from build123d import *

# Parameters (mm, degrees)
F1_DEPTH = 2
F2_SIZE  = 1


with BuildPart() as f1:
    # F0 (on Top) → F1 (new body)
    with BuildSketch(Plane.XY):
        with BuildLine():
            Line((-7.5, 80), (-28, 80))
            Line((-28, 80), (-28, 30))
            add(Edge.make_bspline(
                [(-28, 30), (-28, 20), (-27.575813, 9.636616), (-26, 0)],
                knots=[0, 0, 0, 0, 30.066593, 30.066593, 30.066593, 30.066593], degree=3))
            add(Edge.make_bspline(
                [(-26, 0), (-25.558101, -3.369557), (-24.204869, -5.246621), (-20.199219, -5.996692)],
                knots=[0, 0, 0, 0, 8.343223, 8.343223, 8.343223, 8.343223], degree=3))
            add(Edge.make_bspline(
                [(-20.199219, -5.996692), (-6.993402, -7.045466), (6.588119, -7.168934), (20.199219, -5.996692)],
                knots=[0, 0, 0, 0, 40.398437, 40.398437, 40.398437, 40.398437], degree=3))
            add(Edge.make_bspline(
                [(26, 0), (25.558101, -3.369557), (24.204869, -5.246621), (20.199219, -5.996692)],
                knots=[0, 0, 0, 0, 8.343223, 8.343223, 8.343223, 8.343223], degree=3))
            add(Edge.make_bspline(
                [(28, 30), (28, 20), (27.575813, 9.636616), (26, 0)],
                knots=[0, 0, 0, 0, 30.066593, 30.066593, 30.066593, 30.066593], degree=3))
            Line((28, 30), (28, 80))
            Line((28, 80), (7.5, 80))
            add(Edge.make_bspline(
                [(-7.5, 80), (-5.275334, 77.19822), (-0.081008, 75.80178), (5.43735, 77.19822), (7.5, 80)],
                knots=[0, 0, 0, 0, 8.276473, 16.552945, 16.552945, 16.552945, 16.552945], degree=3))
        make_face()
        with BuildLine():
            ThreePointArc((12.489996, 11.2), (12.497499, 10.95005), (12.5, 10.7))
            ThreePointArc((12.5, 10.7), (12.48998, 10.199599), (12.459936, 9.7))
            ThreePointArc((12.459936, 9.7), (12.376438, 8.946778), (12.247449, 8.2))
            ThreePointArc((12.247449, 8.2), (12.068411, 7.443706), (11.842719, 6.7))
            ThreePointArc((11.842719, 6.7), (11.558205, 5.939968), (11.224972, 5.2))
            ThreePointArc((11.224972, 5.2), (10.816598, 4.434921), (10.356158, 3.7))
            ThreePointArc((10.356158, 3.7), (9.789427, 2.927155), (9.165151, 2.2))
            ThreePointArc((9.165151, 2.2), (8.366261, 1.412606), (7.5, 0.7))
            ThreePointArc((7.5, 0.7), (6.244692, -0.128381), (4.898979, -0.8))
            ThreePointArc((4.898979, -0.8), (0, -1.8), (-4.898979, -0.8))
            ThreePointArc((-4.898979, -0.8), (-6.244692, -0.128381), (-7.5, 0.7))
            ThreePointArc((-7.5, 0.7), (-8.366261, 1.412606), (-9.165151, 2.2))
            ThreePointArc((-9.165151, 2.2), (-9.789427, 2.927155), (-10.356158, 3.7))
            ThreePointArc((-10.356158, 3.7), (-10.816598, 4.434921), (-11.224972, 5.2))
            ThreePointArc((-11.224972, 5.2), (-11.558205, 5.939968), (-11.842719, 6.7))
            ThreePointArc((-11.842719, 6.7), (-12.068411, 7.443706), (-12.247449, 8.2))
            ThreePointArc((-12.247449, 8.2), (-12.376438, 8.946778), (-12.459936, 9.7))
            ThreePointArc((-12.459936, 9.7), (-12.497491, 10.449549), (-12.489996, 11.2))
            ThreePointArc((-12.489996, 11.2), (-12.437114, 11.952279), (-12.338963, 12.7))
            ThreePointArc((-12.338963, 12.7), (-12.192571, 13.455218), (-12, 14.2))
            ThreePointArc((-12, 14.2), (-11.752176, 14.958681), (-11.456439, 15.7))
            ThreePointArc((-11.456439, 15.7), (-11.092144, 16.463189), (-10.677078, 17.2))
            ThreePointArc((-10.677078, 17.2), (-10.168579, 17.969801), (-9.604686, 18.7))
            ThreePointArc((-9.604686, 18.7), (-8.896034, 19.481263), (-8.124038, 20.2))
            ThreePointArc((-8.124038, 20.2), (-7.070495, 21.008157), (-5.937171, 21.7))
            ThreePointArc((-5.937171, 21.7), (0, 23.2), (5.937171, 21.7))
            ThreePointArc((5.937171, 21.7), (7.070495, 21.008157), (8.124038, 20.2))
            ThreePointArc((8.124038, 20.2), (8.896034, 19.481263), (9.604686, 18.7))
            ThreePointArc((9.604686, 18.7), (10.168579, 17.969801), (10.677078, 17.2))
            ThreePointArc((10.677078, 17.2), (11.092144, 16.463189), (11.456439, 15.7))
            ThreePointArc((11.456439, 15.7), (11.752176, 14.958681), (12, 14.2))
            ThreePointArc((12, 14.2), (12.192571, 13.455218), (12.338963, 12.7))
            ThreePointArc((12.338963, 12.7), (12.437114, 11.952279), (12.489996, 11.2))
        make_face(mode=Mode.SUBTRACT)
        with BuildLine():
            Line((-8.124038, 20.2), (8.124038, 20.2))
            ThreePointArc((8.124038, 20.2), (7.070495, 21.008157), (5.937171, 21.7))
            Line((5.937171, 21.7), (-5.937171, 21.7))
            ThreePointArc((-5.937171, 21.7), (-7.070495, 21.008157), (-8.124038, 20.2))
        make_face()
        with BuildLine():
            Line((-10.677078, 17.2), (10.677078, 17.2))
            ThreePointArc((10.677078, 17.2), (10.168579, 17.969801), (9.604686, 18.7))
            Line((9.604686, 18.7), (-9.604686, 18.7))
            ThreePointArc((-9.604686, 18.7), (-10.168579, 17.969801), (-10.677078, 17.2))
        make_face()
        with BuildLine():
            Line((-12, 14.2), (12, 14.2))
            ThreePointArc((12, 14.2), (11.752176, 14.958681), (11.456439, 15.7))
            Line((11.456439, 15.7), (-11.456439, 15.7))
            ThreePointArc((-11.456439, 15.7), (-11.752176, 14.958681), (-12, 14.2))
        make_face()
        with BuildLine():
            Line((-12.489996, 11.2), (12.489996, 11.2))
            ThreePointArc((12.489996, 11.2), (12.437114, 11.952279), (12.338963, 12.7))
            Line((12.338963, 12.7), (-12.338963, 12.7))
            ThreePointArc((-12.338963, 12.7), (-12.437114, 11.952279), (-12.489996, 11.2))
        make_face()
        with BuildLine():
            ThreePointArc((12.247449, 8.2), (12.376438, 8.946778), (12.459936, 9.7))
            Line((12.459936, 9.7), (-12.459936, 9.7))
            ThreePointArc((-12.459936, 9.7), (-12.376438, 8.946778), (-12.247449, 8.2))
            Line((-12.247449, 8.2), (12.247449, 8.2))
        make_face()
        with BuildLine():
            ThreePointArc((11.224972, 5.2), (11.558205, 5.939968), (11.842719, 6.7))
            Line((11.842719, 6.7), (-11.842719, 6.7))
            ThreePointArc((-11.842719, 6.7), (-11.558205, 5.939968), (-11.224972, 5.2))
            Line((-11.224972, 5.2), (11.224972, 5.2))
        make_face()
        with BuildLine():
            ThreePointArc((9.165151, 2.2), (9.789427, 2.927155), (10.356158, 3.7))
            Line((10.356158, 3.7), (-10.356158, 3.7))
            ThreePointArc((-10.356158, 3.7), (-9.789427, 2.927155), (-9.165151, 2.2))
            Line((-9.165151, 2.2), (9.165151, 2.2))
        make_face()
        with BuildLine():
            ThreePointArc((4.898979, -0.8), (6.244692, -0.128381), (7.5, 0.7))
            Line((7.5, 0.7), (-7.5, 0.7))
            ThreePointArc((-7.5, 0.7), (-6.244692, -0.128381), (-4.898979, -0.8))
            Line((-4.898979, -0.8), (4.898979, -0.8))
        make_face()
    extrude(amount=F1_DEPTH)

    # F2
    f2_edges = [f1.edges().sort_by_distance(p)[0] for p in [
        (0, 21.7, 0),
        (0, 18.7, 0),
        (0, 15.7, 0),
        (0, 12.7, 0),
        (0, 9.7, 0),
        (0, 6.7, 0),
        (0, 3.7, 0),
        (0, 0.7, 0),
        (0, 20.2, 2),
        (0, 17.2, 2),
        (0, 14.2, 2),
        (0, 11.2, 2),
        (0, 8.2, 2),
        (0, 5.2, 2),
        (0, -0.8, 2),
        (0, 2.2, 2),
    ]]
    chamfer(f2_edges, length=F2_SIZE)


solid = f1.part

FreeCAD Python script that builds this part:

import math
import FreeCAD as App
import Part
import Sketcher
from FreeCAD import Vector
Q = App.Units.Quantity


def edges_at(feature, points):
    """Names of the edges that pass closest to the given points."""
    edges = feature.Shape.Edges
    near = lambda p: min(range(len(edges)), key=lambda i: edges[i].distToShape(Part.Vertex(*p))[0])
    return sorted({f"Edge{near(p) + 1}" for p in points})

doc = App.newDocument("Part")
body = doc.addObject("PartDesign::Body", "Body")

# Sketch on XY plane
sketch1 = doc.addObject("Sketcher::SketchObject", "Sketch")
body.addObject(sketch1)
sketch1.AttachmentSupport = (doc.XY_Plane, [""])
sketch1.MapMode = "FlatFace"
sketch1.addGeometry([
    Part.LineSegment(Vector(-7.5, 80, 0), Vector(-28, 80, 0)),  # 0
    Part.LineSegment(Vector(-28, 80, 0), Vector(-28, 30, 0)),  # 1
    Part.BSplineCurve([Vector(-28, 30, 0), Vector(-28, 20, 0), Vector(-27.575813, 9.636616, 0), Vector(-26, 0, 0)], [4, 4], [0, 30.066593], False, 3, [1, 1, 1, 1], False),  # 2
    Part.BSplineCurve([Vector(-26, 0, 0), Vector(-25.558101, -3.369557, 0), Vector(-24.204869, -5.246621, 0), Vector(-20.199219, -5.996692, 0)], [4, 4], [0, 8.343223], False, 3, [1, 1, 1, 1], False),  # 3
    Part.BSplineCurve([Vector(-20.199219, -5.996692, 0), Vector(-6.993402, -7.045466, 0), Vector(6.588119, -7.168934, 0), Vector(20.199219, -5.996692, 0)], [4, 4], [0, 40.398437], False, 3, [1, 1, 1, 1], False),  # 4
    Part.BSplineCurve([Vector(26, 0, 0), Vector(25.558101, -3.369557, 0), Vector(24.204869, -5.246621, 0), Vector(20.199219, -5.996692, 0)], [4, 4], [0, 8.343223], False, 3, [1, 1, 1, 1], False),  # 5
    Part.BSplineCurve([Vector(28, 30, 0), Vector(28, 20, 0), Vector(27.575813, 9.636616, 0), Vector(26, 0, 0)], [4, 4], [0, 30.066593], False, 3, [1, 1, 1, 1], False),  # 6
    Part.LineSegment(Vector(28, 30, 0), Vector(28, 80, 0)),  # 7
    Part.LineSegment(Vector(28, 80, 0), Vector(7.5, 80, 0)),  # 8
    Part.BSplineCurve([Vector(-7.5, 80, 0), Vector(-5.275334, 77.19822, 0), Vector(-0.081008, 75.80178, 0), Vector(5.43735, 77.19822, 0), Vector(7.5, 80, 0)], [4, 1, 4], [0, 8.276473, 16.552945], False, 3, [1, 1, 1, 1, 1], False),  # 9
    Part.ArcOfCircle(Part.Circle(Vector(0.001243, 10.700025, 0), Vector(0, 0, 1), 12.498757), math.radians(-0.000114), math.radians(2.292556)),  # 10
    Part.ArcOfCircle(Part.Circle(Vector(-0.00005, 10.699999, 0), Vector(0, 0, 1), 12.50005), math.radians(-4.588545), math.radians(0.000003)),  # 11
    Part.LineSegment(Vector(12.459936, 9.7, 0), Vector(-12.459936, 9.7, 0)),  # 12
    Part.ArcOfCircle(Part.Circle(Vector(-0.000098, 10.699996, 0), Vector(0, 0, 1), 12.499903), math.radians(177.707523), math.radians(184.588585)),  # 13
    Part.LineSegment(Vector(-12.489996, 11.2, 0), Vector(12.489996, 11.2, 0)),  # 14
    Part.ArcOfCircle(Part.Circle(Vector(-0.000108, 10.700034, 0), Vector(0, 0, 1), 12.500113), math.radians(-18.662913), math.radians(-11.537011)),  # 15
    Part.LineSegment(Vector(11.842719, 6.7, 0), Vector(-11.842719, 6.7, 0)),  # 16
    Part.ArcOfCircle(Part.Circle(Vector(0.000108, 10.700034, 0), Vector(0, 0, 1), 12.500113), math.radians(-168.462989), math.radians(-161.337087)),  # 17
    Part.LineSegment(Vector(-12.247449, 8.2, 0), Vector(12.247449, 8.2, 0)),  # 18
    Part.ArcOfCircle(Part.Circle(Vector(0.000066, 10.699958, 0), Vector(0, 0, 1), 12.499922), math.radians(-34.055806), math.radians(-26.103841)),  # 19
    Part.LineSegment(Vector(10.356158, 3.7, 0), Vector(-10.356158, 3.7, 0)),  # 20
    Part.ArcOfCircle(Part.Circle(Vector(-0.000066, 10.699958, 0), Vector(0, 0, 1), 12.499922), math.radians(-153.896159), math.radians(-145.944194)),  # 21
    Part.LineSegment(Vector(-11.224972, 5.2, 0), Vector(11.224972, 5.2, 0)),  # 22
    Part.ArcOfCircle(Part.Circle(Vector(0.000092, 10.699896, 0), Vector(0, 0, 1), 12.499861), math.radians(-53.130152), math.radians(-42.84358)),  # 23
    Part.LineSegment(Vector(7.5, 0.7, 0), Vector(-7.5, 0.7, 0)),  # 24
    Part.ArcOfCircle(Part.Circle(Vector(-0.000092, 10.699896, 0), Vector(0, 0, 1), 12.499861), math.radians(-137.15642), math.radians(-126.869848)),  # 25
    Part.LineSegment(Vector(-9.165151, 2.2, 0), Vector(9.165151, 2.2, 0)),  # 26
    Part.ArcOfCircle(Part.Circle(Vector(0, 10.699998, 0), Vector(0, 0, 1), 12.499998), math.radians(-113.07392), math.radians(-66.92608)),  # 27
    Part.LineSegment(Vector(-4.898979, -0.8, 0), Vector(4.898979, -0.8, 0)),  # 28
    Part.ArcOfCircle(Part.Circle(Vector(-0.000204, 10.700043, 0), Vector(0, 0, 1), 12.499792), math.radians(163.739725), math.radians(170.793151)),  # 29
    Part.LineSegment(Vector(-12, 14.2, 0), Vector(12, 14.2, 0)),  # 30
    Part.ArcOfCircle(Part.Circle(Vector(0.000204, 10.700043, 0), Vector(0, 0, 1), 12.499792), math.radians(9.206849), math.radians(16.260275)),  # 31
    Part.LineSegment(Vector(12.338963, 12.7, 0), Vector(-12.338963, 12.7, 0)),  # 32
    Part.ArcOfCircle(Part.Circle(Vector(-0.000176, 10.700092, 0), Vector(0, 0, 1), 12.499801), math.radians(148.667686), math.radians(156.421883)),  # 33
    Part.LineSegment(Vector(-10.677078, 17.2, 0), Vector(10.677078, 17.2, 0)),  # 34
    Part.ArcOfCircle(Part.Circle(Vector(0.000176, 10.700092, 0), Vector(0, 0, 1), 12.499801), math.radians(23.578117), math.radians(31.332314)),  # 35
    Part.LineSegment(Vector(11.456439, 15.7, 0), Vector(-11.456439, 15.7, 0)),  # 36
    Part.ArcOfCircle(Part.Circle(Vector(-0.00006, 10.700059, 0), Vector(0, 0, 1), 12.499916), math.radians(130.535768), math.radians(140.208212)),  # 37
    Part.LineSegment(Vector(-8.124038, 20.2, 0), Vector(8.124038, 20.2, 0)),  # 38
    Part.ArcOfCircle(Part.Circle(Vector(0.00006, 10.700059, 0), Vector(0, 0, 1), 12.499916), math.radians(39.791788), math.radians(49.464232)),  # 39
    Part.LineSegment(Vector(9.604686, 18.7, 0), Vector(-9.604686, 18.7, 0)),  # 40
    Part.ArcOfCircle(Part.Circle(Vector(0, 10.7, 0), Vector(0, 0, 1), 12.5), math.radians(61.642363), math.radians(118.357637)),  # 41
    Part.LineSegment(Vector(5.937171, 21.7, 0), Vector(-5.937171, 21.7, 0)),  # 42
], False)
sketch1.addConstraint([
    Sketcher.Constraint("Block", 2),
    Sketcher.Constraint("Block", 3),
    Sketcher.Constraint("Block", 4),
    Sketcher.Constraint("Block", 5),
    Sketcher.Constraint("Block", 6),
    Sketcher.Constraint("Block", 9),
    Sketcher.Constraint("Coincident", 0, 2, 1, 1),
    Sketcher.Constraint("Coincident", 1, 2, 2, 1),
    Sketcher.Constraint("Coincident", 6, 1, 7, 1),
    Sketcher.Constraint("Coincident", 7, 2, 8, 1),
    Sketcher.Constraint("Coincident", 8, 2, 9, 2),
    Sketcher.Constraint("Coincident", 9, 1, 0, 1),
    Sketcher.Constraint("Coincident", 10, 1, 11, 2),
    Sketcher.Constraint("Coincident", 11, 1, 12, 1),
    Sketcher.Constraint("Coincident", 12, 2, 13, 2),
    Sketcher.Constraint("Coincident", 13, 1, 14, 1),
    Sketcher.Constraint("Coincident", 14, 2, 10, 2),
    Sketcher.Constraint("Coincident", 15, 1, 16, 1),
    Sketcher.Constraint("Coincident", 16, 2, 17, 2),
    Sketcher.Constraint("Coincident", 17, 1, 18, 1),
    Sketcher.Constraint("Coincident", 18, 2, 15, 2),
    Sketcher.Constraint("Coincident", 19, 1, 20, 1),
    Sketcher.Constraint("Coincident", 20, 2, 21, 2),
    Sketcher.Constraint("Coincident", 21, 1, 22, 1),
    Sketcher.Constraint("Coincident", 22, 2, 19, 2),
    Sketcher.Constraint("Coincident", 23, 1, 24, 1),
    Sketcher.Constraint("Coincident", 24, 2, 25, 2),
    Sketcher.Constraint("Coincident", 25, 1, 26, 1),
    Sketcher.Constraint("Coincident", 26, 2, 23, 2),
    Sketcher.Constraint("Coincident", 27, 1, 28, 1),
    Sketcher.Constraint("Coincident", 28, 2, 27, 2),
    Sketcher.Constraint("Coincident", 29, 1, 30, 1),
    Sketcher.Constraint("Coincident", 30, 2, 31, 2),
    Sketcher.Constraint("Coincident", 31, 1, 32, 1),
    Sketcher.Constraint("Coincident", 32, 2, 29, 2),
    Sketcher.Constraint("Coincident", 33, 1, 34, 1),
    Sketcher.Constraint("Coincident", 34, 2, 35, 2),
    Sketcher.Constraint("Coincident", 35, 1, 36, 1),
    Sketcher.Constraint("Coincident", 36, 2, 33, 2),
    Sketcher.Constraint("Coincident", 37, 1, 38, 1),
    Sketcher.Constraint("Coincident", 38, 2, 39, 2),
    Sketcher.Constraint("Coincident", 39, 1, 40, 1),
    Sketcher.Constraint("Coincident", 40, 2, 37, 2),
    Sketcher.Constraint("Coincident", 41, 1, 42, 1),
    Sketcher.Constraint("Coincident", 42, 2, 41, 2),
    Sketcher.Constraint("Horizontal", 0),
    Sketcher.Constraint("Vertical", 1),
    Sketcher.Constraint("Vertical", 7),
    Sketcher.Constraint("Horizontal", 8),
    Sketcher.Constraint("Horizontal", 12),
    Sketcher.Constraint("Horizontal", 14),
    Sketcher.Constraint("Horizontal", 16),
    Sketcher.Constraint("Horizontal", 18),
    Sketcher.Constraint("Horizontal", 20),
    Sketcher.Constraint("Horizontal", 22),
    Sketcher.Constraint("Horizontal", 24),
    Sketcher.Constraint("Horizontal", 26),
    Sketcher.Constraint("Horizontal", 28),
    Sketcher.Constraint("Horizontal", 30),
    Sketcher.Constraint("Horizontal", 32),
    Sketcher.Constraint("Horizontal", 34),
    Sketcher.Constraint("Horizontal", 36),
    Sketcher.Constraint("Horizontal", 38),
    Sketcher.Constraint("Horizontal", 40),
    Sketcher.Constraint("Horizontal", 42),
    Sketcher.Constraint("Coincident", 41, 3, 27, 3),
    Sketcher.Constraint("Equal", 15, 17),
    Sketcher.Constraint("Equal", 19, 21),
    Sketcher.Constraint("Equal", 23, 25),
    Sketcher.Constraint("Equal", 29, 31),
    Sketcher.Constraint("Equal", 33, 35),
    Sketcher.Constraint("Equal", 37, 39),
    Sketcher.Constraint("Symmetric", 15, 3, 17, 3, -2),
    Sketcher.Constraint("Symmetric", 19, 3, 21, 3, -2),
    Sketcher.Constraint("Symmetric", 23, 3, 25, 3, -2),
    Sketcher.Constraint("Symmetric", 29, 3, 31, 3, -2),
    Sketcher.Constraint("Symmetric", 33, 3, 35, 3, -2),
    Sketcher.Constraint("Symmetric", 37, 3, 39, 3, -2),
    Sketcher.Constraint("PointOnObject", 27, 3, -2),
    Sketcher.Constraint("Horizontal", 13, 3, 27, 3),
    Sketcher.Constraint("Horizontal", 11, 3, 41, 3),
    Sketcher.Constraint("Horizontal", 41, 3, 10, 1),
    Sketcher.Constraint("Vertical", 8, 2, 23, 1),
    Sketcher.Constraint("Radius", 41, Q("12.5 mm")),
    Sketcher.Constraint("DistanceX", 30, 1, 30, 2, Q("24 mm")),
    Sketcher.Constraint("DistanceY", 11, 1, 10, 1, Q("1 mm")),
    Sketcher.Constraint("DistanceY", 15, 1, 11, 1, Q("3 mm")),
    Sketcher.Constraint("DistanceY", 17, 1, 13, 1, Q("3 mm")),
    Sketcher.Constraint("DistanceY", 19, 1, 15, 1, Q("3 mm")),
    Sketcher.Constraint("DistanceY", 21, 1, 17, 1, Q("3 mm")),
    Sketcher.Constraint("DistanceY", 23, 1, 19, 1, Q("3 mm")),
    Sketcher.Constraint("DistanceY", 25, 1, 21, 1, Q("3 mm")),
    Sketcher.Constraint("DistanceY", 27, 1, 25, 1, Q("3 mm")),
    Sketcher.Constraint("DistanceY", 13, 1, 29, 1, Q("3 mm")),
    Sketcher.Constraint("DistanceY", 10, 1, 31, 1, Q("2 mm")),
    Sketcher.Constraint("DistanceY", 29, 1, 33, 1, Q("3 mm")),
    Sketcher.Constraint("DistanceY", 31, 1, 35, 1, Q("3 mm")),
    Sketcher.Constraint("DistanceY", 33, 1, 37, 1, Q("3 mm")),
    Sketcher.Constraint("DistanceY", 35, 1, 39, 1, Q("3 mm")),
    Sketcher.Constraint("DistanceY", 39, 1, 41, 1, Q("3 mm")),
    Sketcher.Constraint("DistanceY", -1, 1, 11, 3, Q("10.699999 mm")),
    Sketcher.Constraint("DistanceX", -1, 1, 10, 1, Q("12.5 mm")),
    Sketcher.Constraint("DistanceY", -1, 1, 13, 1, Q("11.2 mm")),
    Sketcher.Constraint("Radius", 33, Q("12.499801 mm")),
    Sketcher.Constraint("Radius", 11, Q("12.50005 mm")),
    Sketcher.Constraint("Radius", 23, Q("12.499861 mm")),
    Sketcher.Constraint("DistanceX", 26, 1, 26, 2, Q("18.330302 mm")),
    Sketcher.Constraint("Radius", 10, Q("12.498757 mm")),
    Sketcher.Constraint("Radius", 13, Q("12.499903 mm")),
    Sketcher.Constraint("Radius", 15, Q("12.500113 mm")),
    Sketcher.Constraint("Radius", 19, Q("12.499922 mm")),
    Sketcher.Constraint("Radius", 27, Q("12.499998 mm")),
    Sketcher.Constraint("Radius", 29, Q("12.499792 mm")),
    Sketcher.Constraint("Radius", 37, Q("12.499916 mm")),
    Sketcher.Constraint("DistanceX", 14, 1, 14, 2, Q("24.979992 mm")),
    Sketcher.Constraint("DistanceX", 16, 2, 16, 1, Q("23.685438 mm")),
    Sketcher.Constraint("DistanceX", 40, 2, 40, 1, Q("19.209372 mm")),
    Sketcher.Constraint("DistanceY", 21, 3, 37, 3, Q("0.000102 mm")),
    Sketcher.Constraint("DistanceX", 36, 2, 37, 1, Q("3.332401 mm")),
    Sketcher.Constraint("DistanceX", 12, 2, 12, 1, Q("24.919872 mm")),
    Sketcher.Constraint("DistanceX", 18, 1, 18, 2, Q("24.494898 mm")),
    Sketcher.Constraint("DistanceX", 20, 2, 20, 1, Q("20.712316 mm")),
    Sketcher.Constraint("DistanceX", 22, 1, 22, 2, Q("22.449944 mm")),
    Sketcher.Constraint("DistanceX", 32, 2, 32, 1, Q("24.677926 mm")),
    Sketcher.Constraint("DistanceX", 34, 1, 34, 2, Q("21.354156 mm")),
])
pad1 = doc.addObject("PartDesign::Pad", "Pad")
body.addObject(pad1)
pad1.Profile = sketch1
pad1.Length = 2
doc.recompute()

chamfer = doc.addObject("PartDesign::Chamfer", "Chamfer")
body.addObject(chamfer)
chamfer.Base = (pad1, edges_at(pad1, [
    (0, 21.7, 0),
    (0, 18.7, 0),
    (0, 15.7, 0),
    (0, 12.7, 0),
    (0, 9.7, 0),
    (0, 6.7, 0),
    (0, 3.7, 0),
    (0, 0.7, 0),
    (0, 20.2, 2),
    (0, 17.2, 2),
    (0, 14.2, 2),
    (0, 11.2, 2),
    (0, 8.2, 2),
    (0, 5.2, 2),
    (0, -0.8, 2),
    (0, 2.2, 2),
]))
chamfer.Size = 1

doc.recompute()
